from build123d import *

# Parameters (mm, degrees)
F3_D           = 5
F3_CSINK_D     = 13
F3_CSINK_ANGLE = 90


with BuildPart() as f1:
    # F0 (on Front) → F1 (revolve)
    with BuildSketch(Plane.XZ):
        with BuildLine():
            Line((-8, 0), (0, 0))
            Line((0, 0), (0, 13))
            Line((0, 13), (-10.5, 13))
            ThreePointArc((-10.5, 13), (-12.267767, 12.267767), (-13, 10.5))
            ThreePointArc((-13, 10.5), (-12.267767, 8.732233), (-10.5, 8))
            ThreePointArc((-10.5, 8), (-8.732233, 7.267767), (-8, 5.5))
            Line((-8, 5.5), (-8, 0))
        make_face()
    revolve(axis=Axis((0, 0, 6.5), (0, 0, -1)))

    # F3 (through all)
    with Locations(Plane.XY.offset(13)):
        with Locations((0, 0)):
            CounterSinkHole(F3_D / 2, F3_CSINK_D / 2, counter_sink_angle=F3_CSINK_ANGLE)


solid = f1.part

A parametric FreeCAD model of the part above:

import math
import FreeCAD as App
import Part
import Sketcher
from FreeCAD import Vector
Q = App.Units.Quantity

doc = App.newDocument("Part")
body = doc.addObject("PartDesign::Body", "Body")

sketch1 = body.newObject("Sketcher::SketchObject", "Sketch")
sketch1.AttachmentSupport = (doc.getObject("XZ_Plane"), [""])
sketch1.MapMode = "FlatFace"
sketch1.addGeometry(Part.LineSegment(Vector(-8, 0, 0), Vector(0, 0, 0)), False)
sketch1.addGeometry(Part.LineSegment(Vector(0, 0, 0), Vector(0, 13, 0)), False)
sketch1.addGeometry(Part.LineSegment(Vector(0, 13, 0), Vector(-10.5, 13, 0)), False)
sketch1.addGeometry(Part.ArcOfCircle(Part.Circle(Vector(-10.5, 10.5, 0), Vector(0, 0, 1), 2.5), math.radians(89.999996), math.radians(180.000004)), False)
sketch1.addGeometry(Part.ArcOfCircle(Part.Circle(Vector(-10.5, 10.5, 0), Vector(0, 0, 1), 2.5), math.radians(179.999996), math.radians(270.000004)), False)
sketch1.addGeometry(Part.ArcOfCircle(Part.Circle(Vector(-10.5, 5.5, 0), Vector(0, 0, 1), 2.5), math.radians(-0.000004), math.radians(90.000004)), False)
sketch1.addGeometry(Part.LineSegment(Vector(-8, 5.5, 0), Vector(-8, 0, 0)), False)
sketch1.addConstraint(Sketcher.Constraint("Coincident", 0, 2, 1, 1))
sketch1.addConstraint(Sketcher.Constraint("Coincident", 1, 2, 2, 1))
sketch1.addConstraint(Sketcher.Constraint("Tangent", 2, 2, 3, 1))
sketch1.addConstraint(Sketcher.Constraint("Tangent", 3, 2, 4, 1))
sketch1.addConstraint(Sketcher.Constraint("Tangent", 4, 2, 5, 2))
sketch1.addConstraint(Sketcher.Constraint("Tangent", 5, 1, 6, 1))
sketch1.addConstraint(Sketcher.Constraint("Coincident", 6, 2, 0, 1))
sketch1.addConstraint(Sketcher.Constraint("Horizontal", 0))
sketch1.addConstraint(Sketcher.Constraint("Vertical", 1))
sketch1.addConstraint(Sketcher.Constraint("Horizontal", 2))
sketch1.addConstraint(Sketcher.Constraint("Vertical", 6))
sketch1.addConstraint(Sketcher.Constraint("Coincident", 0, 2, -1, 1))
sketch1.addConstraint(Sketcher.Constraint("Equal", 3, 4))
sketch1.addConstraint(Sketcher.Constraint("Equal", 4, 5))
sketch1.addConstraint(Sketcher.Constraint("Horizontal", 4, 3, 3, 2))
sketch1.addConstraint(Sketcher.Constraint("Vertical", 4, 3, 5, 3))
sketch1.addConstraint(Sketcher.Constraint("Radius", 3, Q("2.5 mm")))
sketch1.addConstraint(Sketcher.Constraint("DistanceX", 0, 1, 0, 2, Q("8 mm")))
sketch1.addConstraint(Sketcher.Constraint("DistanceY", 1, 1, 1, 2, Q("13 mm")))
revolution = body.newObject("PartDesign::Revolution", "Revolution")
revolution.Profile = sketch1
revolution.ReferenceAxis = (sketch1, ["V_Axis"])
revolution.Angle = 360

sketch2 = body.newObject("Sketcher::SketchObject", "Sketch001")
sketch2.AttachmentSupport = (doc.getObject("XY_Plane"), [""])
sketch2.MapMode = "FlatFace"
sketch2.AttachmentOffset = App.Placement(Vector(0, 0, 13), App.Rotation())
sketch2.addGeometry(Part.Circle(Vector(0, 0, 0), Vector(0, 0, 1), 2.5), False)
sketch2.addConstraint(Sketcher.Constraint("Coincident", 0, 3, -1, 1))
sketch2.addConstraint(Sketcher.Constraint("Diameter", 0, Q("5 mm")))
doc.recompute()
hole = body.newObject("PartDesign::Hole", "Hole")
hole.Profile = sketch2
hole.ThreadType = "None"
hole.Diameter = 5
hole.DepthType = "ThroughAll"
hole.HoleCutType = "Countersink"
hole.HoleCutDiameter = 13
hole.HoleCutCountersinkAngle = 90

doc.recompute()
